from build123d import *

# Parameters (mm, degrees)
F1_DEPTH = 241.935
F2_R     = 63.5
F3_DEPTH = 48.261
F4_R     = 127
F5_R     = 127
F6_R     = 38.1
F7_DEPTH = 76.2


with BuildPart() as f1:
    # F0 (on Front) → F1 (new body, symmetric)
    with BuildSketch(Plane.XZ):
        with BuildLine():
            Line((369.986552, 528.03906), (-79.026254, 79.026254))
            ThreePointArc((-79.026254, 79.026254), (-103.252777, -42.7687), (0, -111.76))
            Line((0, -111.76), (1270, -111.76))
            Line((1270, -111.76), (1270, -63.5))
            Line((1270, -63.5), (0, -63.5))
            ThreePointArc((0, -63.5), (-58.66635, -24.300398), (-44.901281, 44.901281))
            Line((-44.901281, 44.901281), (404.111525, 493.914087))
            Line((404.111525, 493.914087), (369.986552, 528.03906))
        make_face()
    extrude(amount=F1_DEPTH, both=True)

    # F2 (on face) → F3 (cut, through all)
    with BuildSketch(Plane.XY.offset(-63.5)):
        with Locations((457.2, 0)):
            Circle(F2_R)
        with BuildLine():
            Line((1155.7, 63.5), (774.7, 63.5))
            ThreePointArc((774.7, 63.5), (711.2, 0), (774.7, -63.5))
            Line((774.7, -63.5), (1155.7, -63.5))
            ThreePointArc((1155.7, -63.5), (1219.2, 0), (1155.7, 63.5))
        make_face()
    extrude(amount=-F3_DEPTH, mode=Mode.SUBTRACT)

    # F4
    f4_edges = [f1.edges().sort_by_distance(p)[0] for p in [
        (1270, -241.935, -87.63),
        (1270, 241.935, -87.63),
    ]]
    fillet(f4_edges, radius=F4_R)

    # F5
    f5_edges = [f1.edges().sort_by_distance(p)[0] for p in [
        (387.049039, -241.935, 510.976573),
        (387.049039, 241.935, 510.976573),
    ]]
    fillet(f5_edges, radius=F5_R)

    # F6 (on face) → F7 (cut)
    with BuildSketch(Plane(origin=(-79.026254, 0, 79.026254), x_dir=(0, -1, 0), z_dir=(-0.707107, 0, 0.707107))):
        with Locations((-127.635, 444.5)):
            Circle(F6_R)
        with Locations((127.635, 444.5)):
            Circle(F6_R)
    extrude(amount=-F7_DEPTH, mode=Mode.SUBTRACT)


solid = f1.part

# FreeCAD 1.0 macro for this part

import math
import FreeCAD as App
import Part
import Sketcher
Q = App.Units.Quantity


def edges_at(feature, points):
    """Names of the edges that pass closest to the given points."""
    edges = feature.Shape.Edges
    near = lambda p: min(range(len(edges)), key=lambda i: edges[i].distToShape(Part.Vertex(*p))[0])
    return sorted({f"Edge{near(p) + 1}" for p in points})

doc = App.newDocument("Part")
body = doc.addObject("PartDesign::Body", "Body")

# Sketch on XZ plane
sketch1 = body.newObject("Sketcher::SketchObject", "Sketch")
sketch1.AttachmentSupport = (doc.getObject("XZ_Plane"), [""])
sketch1.MapMode = "FlatFace"
sketch1.addGeometry([
    Part.LineSegment(App.Vector(370, 528, 0), App.Vector(-79, 79, 0)),  # 0
    Part.ArcOfCircle(Part.Circle(App.Vector(0, 0, 0), App.Vector(0, 0, 1), 112), math.radians(135), math.radians(270)),  # 1
    Part.LineSegment(App.Vector(0, -112, 0), App.Vector(1270, -112, 0)),  # 2
    Part.LineSegment(App.Vector(1270, -112, 0), App.Vector(1270, -64, 0)),  # 3
    Part.LineSegment(App.Vector(1270, -64, 0), App.Vector(0, -64, 0)),  # 4
    Part.ArcOfCircle(Part.Circle(App.Vector(0, 0, 0), App.Vector(0, 0, 1), 64), math.radians(135), math.radians(270)),  # 5
    Part.LineSegment(App.Vector(-45, 45, 0), App.Vector(404, 494, 0)),  # 6
    Part.LineSegment(App.Vector(404, 494, 0), App.Vector(370, 528, 0)),  # 7
], False)
sketch1.addConstraint([
    Sketcher.Constraint("Tangent", 0, 2, 1, 1),
    Sketcher.Constraint("Tangent", 1, 2, 2, 1),
    Sketcher.Constraint("Coincident", 2, 2, 3, 1),
    Sketcher.Constraint("Coincident", 3, 2, 4, 1),
    Sketcher.Constraint("Tangent", 4, 2, 5, 2),
    Sketcher.Constraint("Tangent", 5, 1, 6, 1),
    Sketcher.Constraint("Coincident", 6, 2, 7, 1),
    Sketcher.Constraint("Coincident", 7, 2, 0, 1),
    Sketcher.Constraint("Horizontal", 2),
    Sketcher.Constraint("Vertical", 3),
    Sketcher.Constraint("Horizontal", 4),
    Sketcher.Constraint("Coincident", 1, 3, -1, 1),
    Sketcher.Constraint("Coincident", 5, 3, -1, 1),
    Sketcher.Constraint("Parallel", 0, 6),
    Sketcher.Constraint("Perpendicular", 6, 7),
    Sketcher.Constraint("Radius", 1, Q("4.4 in")),
    Sketcher.Constraint("Radius", 5, Q("2.5 in")),
    Sketcher.Constraint("DistanceX", 2, 1, 2, 2, Q("50 in")),
    Sketcher.Constraint("Distance", 0, Q("25 in")),
    Sketcher.Constraint("Angle", 0, Q("-135 deg")),
])
pad1 = body.newObject("PartDesign::Pad", "Pad")
pad1.Profile = sketch1
pad1.Length = Q("19.05 in")
pad1.Midplane = True

# Sketch on XY plane
sketch2 = body.newObject("Sketcher::SketchObject", "Sketch001")
sketch2.AttachmentSupport = (doc.getObject("XY_Plane"), [""])
sketch2.MapMode = "FlatFace"
sketch2.AttachmentOffset = App.Placement(App.Vector(0, 0, -2.5 * 25.4), App.Rotation())
sketch2.addGeometry([
    Part.Circle(App.Vector(457, 0, 0), App.Vector(0, 0, 1), 64),  # 0
    Part.LineSegment(App.Vector(1156, 64, 0), App.Vector(775, 64, 0)),  # 1
    Part.ArcOfCircle(Part.Circle(App.Vector(775, 0, 0), App.Vector(0, 0, 1), 64), math.radians(90), math.radians(270)),  # 2
    Part.LineSegment(App.Vector(775, -64, 0), App.Vector(1156, -64, 0)),  # 3
    Part.ArcOfCircle(Part.Circle(App.Vector(1156, 0, 0), App.Vector(0, 0, 1), 64), math.radians(-90), math.radians(90)),  # 4
], False)
sketch2.addConstraint([
    Sketcher.Constraint("Tangent", 1, 2, 2, 1),
    Sketcher.Constraint("Tangent", 2, 2, 3, 1),
    Sketcher.Constraint("Tangent", 3, 2, 4, 1),
    Sketcher.Constraint("Tangent", 4, 2, 1, 1),
    Sketcher.Constraint("Horizontal", 1),
    Sketcher.Constraint("Horizontal", 3),
    Sketcher.Constraint("Equal", 0, 2),
    Sketcher.Constraint("PointOnObject", 0, 3, -1),
    Sketcher.Constraint("PointOnObject", 2, 3, -1),
    Sketcher.Constraint("Diameter", 0, Q("5 in")),
    Sketcher.Constraint("DistanceX", 1, 2, 1, 1, Q("15 in")),
    Sketcher.Constraint("DistanceX", -1, 1, 0, 3, Q("18 in")),
    Sketcher.Constraint("DistanceX", -1, 1, 2, 3, Q("30.5 in")),
])
pocket1 = body.newObject("PartDesign::Pocket", "Pocket")
pocket1.Profile = sketch2
pocket1.Type = "ThroughAll"
doc.recompute()

fillet = body.newObject("PartDesign::Fillet", "Fillet")
fillet.Base = (pocket1, edges_at(pocket1, [(1270, -241.935, -87.63), (1270, 241.935, -87.63)]))
fillet.Radius = Q("5 in")
doc.recompute()

fillet2 = body.newObject("PartDesign::Fillet", "Fillet001")
fillet2.Base = (fillet, edges_at(fillet, [(387.049, -241.935, 510.977), (387.049, 241.935, 510.977)]))
fillet2.Radius = Q("5 in")

# Sketch on an angled plane
sketch3 = body.newObject("Sketcher::SketchObject", "Sketch002")
sketch3.Placement = App.Placement(App.Vector(-79.026254, 0, 79.026254), App.Rotation(App.Vector(0, -1, 0), App.Vector(0.707106781, 0, 0.707106781), App.Vector(-0.707106781, 0, 0.707106781), "ZXY"))
sketch3.addGeometry([
    Part.Circle(App.Vector(-128, 444, 0), App.Vector(0, 0, 1), 38),
    Part.Circle(App.Vector(128, 444, 0), App.Vector(0, 0, 1), 38),
], False)
sketch3.addConstraint([
    Sketcher.Constraint("Equal", 0, 1),
    Sketcher.Constraint("Symmetric", 0, 3, 1, 3, -2),
    Sketcher.Constraint("Diameter", 0, Q("3 in")),
    Sketcher.Constraint("DistanceY", -1, 1, 0, 3, Q("17.5 in")),
    Sketcher.Constraint("DistanceX", 0, 3, 1, 3, Q("10.05 in")),
])
pocket2 = body.newObject("PartDesign::Pocket", "Pocket001")
pocket2.Profile = sketch3
pocket2.Length = Q("3 in")

doc.recompute()
